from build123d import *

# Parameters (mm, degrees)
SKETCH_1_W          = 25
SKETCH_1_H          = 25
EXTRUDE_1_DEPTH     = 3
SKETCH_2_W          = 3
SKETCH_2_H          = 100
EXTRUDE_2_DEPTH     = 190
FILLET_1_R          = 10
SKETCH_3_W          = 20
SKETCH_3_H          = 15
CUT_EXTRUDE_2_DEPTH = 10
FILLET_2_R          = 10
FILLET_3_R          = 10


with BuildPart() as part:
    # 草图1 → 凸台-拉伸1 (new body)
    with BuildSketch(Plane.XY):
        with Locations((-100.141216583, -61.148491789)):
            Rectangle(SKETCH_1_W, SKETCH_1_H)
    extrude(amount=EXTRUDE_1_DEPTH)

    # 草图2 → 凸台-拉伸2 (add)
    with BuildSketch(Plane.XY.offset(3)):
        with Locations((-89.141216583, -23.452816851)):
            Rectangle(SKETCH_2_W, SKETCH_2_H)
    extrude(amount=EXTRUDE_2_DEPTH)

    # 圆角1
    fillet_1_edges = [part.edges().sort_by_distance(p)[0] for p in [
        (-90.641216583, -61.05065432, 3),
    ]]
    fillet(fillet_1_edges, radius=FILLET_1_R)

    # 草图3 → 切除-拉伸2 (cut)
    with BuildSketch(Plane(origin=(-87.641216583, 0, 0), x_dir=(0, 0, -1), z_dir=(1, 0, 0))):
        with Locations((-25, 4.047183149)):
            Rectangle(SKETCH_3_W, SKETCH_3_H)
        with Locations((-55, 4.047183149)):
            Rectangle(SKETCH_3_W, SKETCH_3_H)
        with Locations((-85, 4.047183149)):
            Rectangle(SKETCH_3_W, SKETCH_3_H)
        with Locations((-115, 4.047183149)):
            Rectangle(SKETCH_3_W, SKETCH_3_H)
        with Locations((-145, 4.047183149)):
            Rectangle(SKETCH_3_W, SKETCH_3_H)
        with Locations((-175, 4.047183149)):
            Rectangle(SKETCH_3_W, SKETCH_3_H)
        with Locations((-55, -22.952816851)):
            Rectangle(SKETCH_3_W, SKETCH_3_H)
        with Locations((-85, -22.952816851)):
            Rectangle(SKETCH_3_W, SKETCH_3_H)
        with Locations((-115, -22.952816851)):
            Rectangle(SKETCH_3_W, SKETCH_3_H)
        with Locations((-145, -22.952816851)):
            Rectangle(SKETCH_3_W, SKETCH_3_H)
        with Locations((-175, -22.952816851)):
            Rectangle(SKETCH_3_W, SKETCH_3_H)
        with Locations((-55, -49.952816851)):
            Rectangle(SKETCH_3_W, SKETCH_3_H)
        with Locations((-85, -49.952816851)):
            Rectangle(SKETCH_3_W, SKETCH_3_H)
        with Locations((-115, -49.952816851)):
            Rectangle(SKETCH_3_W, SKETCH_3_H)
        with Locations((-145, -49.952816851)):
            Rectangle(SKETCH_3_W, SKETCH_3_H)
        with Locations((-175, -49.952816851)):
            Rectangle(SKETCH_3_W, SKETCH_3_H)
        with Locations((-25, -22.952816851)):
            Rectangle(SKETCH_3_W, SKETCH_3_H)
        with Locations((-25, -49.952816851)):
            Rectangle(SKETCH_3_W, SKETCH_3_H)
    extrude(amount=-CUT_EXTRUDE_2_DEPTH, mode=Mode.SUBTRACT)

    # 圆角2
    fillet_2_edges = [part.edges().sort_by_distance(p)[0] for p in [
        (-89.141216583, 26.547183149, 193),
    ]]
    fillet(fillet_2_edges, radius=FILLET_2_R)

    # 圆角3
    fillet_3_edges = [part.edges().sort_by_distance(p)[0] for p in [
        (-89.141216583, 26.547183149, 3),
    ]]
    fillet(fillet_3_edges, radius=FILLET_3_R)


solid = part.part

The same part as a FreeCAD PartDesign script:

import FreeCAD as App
import Part
import Sketcher
from FreeCAD import Vector
Q = App.Units.Quantity


def edges_at(feature, points):
    """Names of the edges that pass closest to the given points."""
    edges = feature.Shape.Edges
    near = lambda p: min(range(len(edges)), key=lambda i: edges[i].distToShape(Part.Vertex(*p))[0])
    return sorted({f"Edge{near(p) + 1}" for p in points})

doc = App.newDocument("Part")
params = doc.addObject("Spreadsheet::Sheet", "Params")
for row, (alias, value) in enumerate([
    ("sketch1_width", "25 mm"),
    ("pad1_length", "3 mm"),
    ("sketch2_width", "3 mm"),
    ("sketch2_height", "100 mm"),
    ("pad2_length", "190 mm"),
    ("fillet_radius", "10 mm"),
    ("sketch3_width", "15 mm"),
    ("sketch3_height", "20 mm"),
    ("pocket1_length", "10 mm"),
    ("fillet2_radius", "10 mm"),
    ("fillet3_radius", "10 mm"),
], start=1):
    params.set(f"A{row}", alias)
    params.set(f"B{row}", "=" + value)
    params.setAlias(f"B{row}", alias)

body = doc.addObject("PartDesign::Body", "Body")

# Sketch on XY plane
sketch1 = body.newObject("Sketcher::SketchObject", "Sketch")
sketch1.AttachmentSupport = (doc.getObject("XY_Plane"), [""])
sketch1.MapMode = "FlatFace"
sketch1.addGeometry([
    Part.LineSegment(Vector(-112.641217, -48.648492, 0), Vector(-112.641217, -73.648492, 0)),
    Part.LineSegment(Vector(-112.641217, -73.648492, 0), Vector(-87.641217, -73.648492, 0)),
    Part.LineSegment(Vector(-87.641217, -73.648492, 0), Vector(-87.641217, -48.648492, 0)),
    Part.LineSegment(Vector(-87.641217, -48.648492, 0), Vector(-112.641217, -48.648492, 0)),
], False)
sketch1.addConstraint([
    Sketcher.Constraint("Coincident", 0, 2, 1, 1),
    Sketcher.Constraint("Coincident", 1, 2, 2, 1),
    Sketcher.Constraint("Coincident", 2, 2, 3, 1),
    Sketcher.Constraint("Coincident", 3, 2, 0, 1),
    Sketcher.Constraint("Vertical", 0),
    Sketcher.Constraint("Horizontal", 1),
    Sketcher.Constraint("Vertical", 2),
    Sketcher.Constraint("Horizontal", 3),
    Sketcher.Constraint("Equal", 3, 0),
    Sketcher.Constraint("DistanceX", 1, 1, 1, 2, Q("25 mm")),
    Sketcher.Constraint("DistanceY", 0, 2, -1, 1, Q("73.648492 mm")),
    Sketcher.Constraint("DistanceX", 0, 2, -1, 1, Q("112.641217 mm")),
])
sketch1.setExpression("Constraints[9]", "Params.sketch1_width")
pad1 = body.newObject("PartDesign::Pad", "Pad")
pad1.Profile = sketch1
pad1.setExpression("Length", "Params.pad1_length")

# Sketch on XY plane
sketch2 = body.newObject("Sketcher::SketchObject", "Sketch001")
sketch2.AttachmentSupport = (doc.getObject("XY_Plane"), [""])
sketch2.MapMode = "FlatFace"
sketch2.AttachmentOffset = App.Placement(Vector(0, 0, 3), App.Rotation())
sketch2.addGeometry([
    Part.LineSegment(Vector(-90.641217, 26.547183, 0), Vector(-90.641217, -73.452817, 0)),
    Part.LineSegment(Vector(-90.641217, -73.452817, 0), Vector(-87.641217, -73.452817, 0)),
    Part.LineSegment(Vector(-87.641217, -73.452817, 0), Vector(-87.641217, 26.547183, 0)),
    Part.LineSegment(Vector(-87.641217, 26.547183, 0), Vector(-90.641217, 26.547183, 0)),
], False)
sketch2.addConstraint([
    Sketcher.Constraint("Coincident", 0, 2, 1, 1),
    Sketcher.Constraint("Coincident", 1, 2, 2, 1),
    Sketcher.Constraint("Coincident", 2, 2, 3, 1),
    Sketcher.Constraint("Coincident", 3, 2, 0, 1),
    Sketcher.Constraint("Vertical", 0),
    Sketcher.Constraint("Horizontal", 1),
    Sketcher.Constraint("Vertical", 2),
    Sketcher.Constraint("Horizontal", 3),
    Sketcher.Constraint("DistanceX", 1, 1, 1, 2, Q("3 mm")),
    Sketcher.Constraint("DistanceY", 0, 2, 0, 1, Q("100 mm")),
    Sketcher.Constraint("DistanceX", 0, 2, -1, 1, Q("90.641217 mm")),
    Sketcher.Constraint("DistanceY", 0, 2, -1, 1, Q("73.452817 mm")),
])
sketch2.setExpression("Constraints[8]", "Params.sketch2_width")
sketch2.setExpression("Constraints[9]", "Params.sketch2_height")
pad2 = body.newObject("PartDesign::Pad", "Pad001")
pad2.Profile = sketch2
pad2.setExpression("Length", "Params.pad2_length")
doc.recompute()

fillet = body.newObject("PartDesign::Fillet", "Fillet")
fillet.Base = (pad2, edges_at(pad2, [(-90.641, -61.051, 3)]))
fillet.setExpression("Radius", "Params.fillet_radius")

# Sketch on YZ plane
sketch3 = body.newObject("Sketcher::SketchObject", "Sketch002")
sketch3.AttachmentSupport = (doc.getObject("YZ_Plane"), [""])
sketch3.MapMode = "FlatFace"
sketch3.AttachmentOffset = App.Placement(Vector(0, 0, -87.641217), App.Rotation())
sketch3.addGeometry([
    Part.LineSegment(Vector(11.547183, 35, 0), Vector(-3.452817, 35, 0)),  # 0
    Part.LineSegment(Vector(-3.452817, 35, 0), Vector(-3.452817, 15, 0)),  # 1
    Part.LineSegment(Vector(-3.452817, 15, 0), Vector(11.547183, 15, 0)),  # 2
    Part.LineSegment(Vector(11.547183, 15, 0), Vector(11.547183, 35, 0)),  # 3
    Part.LineSegment(Vector(11.547183, 65, 0), Vector(-3.452817, 65, 0)),  # 4
    Part.LineSegment(Vector(-3.452817, 65, 0), Vector(-3.452817, 45, 0)),  # 5
    Part.LineSegment(Vector(-3.452817, 45, 0), Vector(11.547183, 45, 0)),  # 6
    Part.LineSegment(Vector(11.547183, 45, 0), Vector(11.547183, 65, 0)),  # 7
    Part.LineSegment(Vector(11.547183, 95, 0), Vector(-3.452817, 95, 0)),  # 8
    Part.LineSegment(Vector(-3.452817, 95, 0), Vector(-3.452817, 75, 0)),  # 9
    Part.LineSegment(Vector(-3.452817, 75, 0), Vector(11.547183, 75, 0)),  # 10
    Part.LineSegment(Vector(11.547183, 75, 0), Vector(11.547183, 95, 0)),  # 11
    Part.LineSegment(Vector(11.547183, 125, 0), Vector(-3.452817, 125, 0)),  # 12
    Part.LineSegment(Vector(-3.452817, 125, 0), Vector(-3.452817, 105, 0)),  # 13
    Part.LineSegment(Vector(-3.452817, 105, 0), Vector(11.547183, 105, 0)),  # 14
    Part.LineSegment(Vector(11.547183, 105, 0), Vector(11.547183, 125, 0)),  # 15
    Part.LineSegment(Vector(11.547183, 155, 0), Vector(-3.452817, 155, 0)),  # 16
    Part.LineSegment(Vector(-3.452817, 155, 0), Vector(-3.452817, 135, 0)),  # 17
    Part.LineSegment(Vector(-3.452817, 135, 0), Vector(11.547183, 135, 0)),  # 18
    Part.LineSegment(Vector(11.547183, 135, 0), Vector(11.547183, 155, 0)),  # 19
    Part.LineSegment(Vector(11.547183, 185, 0), Vector(-3.452817, 185, 0)),  # 20
    Part.LineSegment(Vector(-3.452817, 185, 0), Vector(-3.452817, 165, 0)),  # 21
    Part.LineSegment(Vector(-3.452817, 165, 0), Vector(11.547183, 165, 0)),  # 22
    Part.LineSegment(Vector(11.547183, 165, 0), Vector(11.547183, 185, 0)),  # 23
    Part.LineSegment(Vector(-15.452817, 65, 0), Vector(-30.452817, 65, 0)),  # 24
    Part.LineSegment(Vector(-30.452817, 65, 0), Vector(-30.452817, 45, 0)),  # 25
    Part.LineSegment(Vector(-30.452817, 45, 0), Vector(-15.452817, 45, 0)),  # 26
    Part.LineSegment(Vector(-15.452817, 45, 0), Vector(-15.452817, 65, 0)),  # 27
    Part.LineSegment(Vector(-15.452817, 95, 0), Vector(-30.452817, 95, 0)),  # 28
    Part.LineSegment(Vector(-30.452817, 95, 0), Vector(-30.452817, 75, 0)),  # 29
    Part.LineSegment(Vector(-30.452817, 75, 0), Vector(-15.452817, 75, 0)),  # 30
    Part.LineSegment(Vector(-15.452817, 75, 0), Vector(-15.452817, 95, 0)),  # 31
    Part.LineSegment(Vector(-15.452817, 125, 0), Vector(-30.452817, 125, 0)),  # 32
    Part.LineSegment(Vector(-30.452817, 125, 0), Vector(-30.452817, 105, 0)),  # 33
    Part.LineSegment(Vector(-30.452817, 105, 0), Vector(-15.452817, 105, 0)),  # 34
    Part.LineSegment(Vector(-15.452817, 105, 0), Vector(-15.452817, 125, 0)),  # 35
    Part.LineSegment(Vector(-15.452817, 155, 0), Vector(-30.452817, 155, 0)),  # 36
    Part.LineSegment(Vector(-30.452817, 155, 0), Vector(-30.452817, 135, 0)),  # 37
    Part.LineSegment(Vector(-30.452817, 135, 0), Vector(-15.452817, 135, 0)),  # 38
    Part.LineSegment(Vector(-15.452817, 135, 0), Vector(-15.452817, 155, 0)),  # 39
    Part.LineSegment(Vector(-15.452817, 185, 0), Vector(-30.452817, 185, 0)),  # 40
    Part.LineSegment(Vector(-30.452817, 185, 0), Vector(-30.452817, 165, 0)),  # 41
    Part.LineSegment(Vector(-30.452817, 165, 0), Vector(-15.452817, 165, 0)),  # 42
    Part.LineSegment(Vector(-15.452817, 165, 0), Vector(-15.452817, 185, 0)),  # 43
    Part.LineSegment(Vector(-42.452817, 65, 0), Vector(-57.452817, 65, 0)),  # 44
    Part.LineSegment(Vector(-57.452817, 65, 0), Vector(-57.452817, 45, 0)),  # 45
    Part.LineSegment(Vector(-57.452817, 45, 0), Vector(-42.452817, 45, 0)),  # 46
    Part.LineSegment(Vector(-42.452817, 45, 0), Vector(-42.452817, 65, 0)),  # 47
    Part.LineSegment(Vector(-42.452817, 95, 0), Vector(-57.452817, 95, 0)),  # 48
    Part.LineSegment(Vector(-57.452817, 95, 0), Vector(-57.452817, 75, 0)),  # 49
    Part.LineSegment(Vector(-57.452817, 75, 0), Vector(-42.452817, 75, 0)),  # 50
    Part.LineSegment(Vector(-42.452817, 75, 0), Vector(-42.452817, 95, 0)),  # 51
    Part.LineSegment(Vector(-42.452817, 125, 0), Vector(-57.452817, 125, 0)),  # 52
    Part.LineSegment(Vector(-57.452817, 125, 0), Vector(-57.452817, 105, 0)),  # 53
    Part.LineSegment(Vector(-57.452817, 105, 0), Vector(-42.452817, 105, 0)),  # 54
    Part.LineSegment(Vector(-42.452817, 105, 0), Vector(-42.452817, 125, 0)),  # 55
    Part.LineSegment(Vector(-42.452817, 155, 0), Vector(-57.452817, 155, 0)),  # 56
    Part.LineSegment(Vector(-57.452817, 155, 0), Vector(-57.452817, 135, 0)),  # 57
    Part.LineSegment(Vector(-57.452817, 135, 0), Vector(-42.452817, 135, 0)),  # 58
    Part.LineSegment(Vector(-42.452817, 135, 0), Vector(-42.452817, 155, 0)),  # 59
    Part.LineSegment(Vector(-42.452817, 185, 0), Vector(-57.452817, 185, 0)),  # 60
    Part.LineSegment(Vector(-57.452817, 185, 0), Vector(-57.452817, 165, 0)),  # 61
    Part.LineSegment(Vector(-57.452817, 165, 0), Vector(-42.452817, 165, 0)),  # 62
    Part.LineSegment(Vector(-42.452817, 165, 0), Vector(-42.452817, 185, 0)),  # 63
    Part.LineSegment(Vector(-15.452817, 35, 0), Vector(-30.452817, 35, 0)),  # 64
    Part.LineSegment(Vector(-30.452817, 35, 0), Vector(-30.452817, 15, 0)),  # 65
    Part.LineSegment(Vector(-30.452817, 15, 0), Vector(-15.452817, 15, 0)),  # 66
    Part.LineSegment(Vector(-15.452817, 15, 0), Vector(-15.452817, 35, 0)),  # 67
    Part.LineSegment(Vector(-42.452817, 35, 0), Vector(-57.452817, 35, 0)),  # 68
    Part.LineSegment(Vector(-57.452817, 35, 0), Vector(-57.452817, 15, 0)),  # 69
    Part.LineSegment(Vector(-57.452817, 15, 0), Vector(-42.452817, 15, 0)),  # 70
    Part.LineSegment(Vector(-42.452817, 15, 0), Vector(-42.452817, 35, 0)),  # 71
], False)
sketch3.addConstraint([
    Sketcher.Constraint("Coincident", 0, 2, 1, 1),
    Sketcher.Constraint("Coincident", 1, 2, 2, 1),
    Sketcher.Constraint("Coincident", 2, 2, 3, 1),
    Sketcher.Constraint("Coincident", 3, 2, 0, 1),
    Sketcher.Constraint("Coincident", 4, 2, 5, 1),
    Sketcher.Constraint("Coincident", 5, 2, 6, 1),
    Sketcher.Constraint("Coincident", 6, 2, 7, 1),
    Sketcher.Constraint("Coincident", 7, 2, 4, 1),
    Sketcher.Constraint("Coincident", 8, 2, 9, 1),
    Sketcher.Constraint("Coincident", 9, 2, 10, 1),
    Sketcher.Constraint("Coincident", 10, 2, 11, 1),
    Sketcher.Constraint("Coincident", 11, 2, 8, 1),
    Sketcher.Constraint("Coincident", 12, 2, 13, 1),
    Sketcher.Constraint("Coincident", 13, 2, 14, 1),
    Sketcher.Constraint("Coincident", 14, 2, 15, 1),
    Sketcher.Constraint("Coincident", 15, 2, 12, 1),
    Sketcher.Constraint("Coincident", 16, 2, 17, 1),
    Sketcher.Constraint("Coincident", 17, 2, 18, 1),
    Sketcher.Constraint("Coincident", 18, 2, 19, 1),
    Sketcher.Constraint("Coincident", 19, 2, 16, 1),
    Sketcher.Constraint("Coincident", 20, 2, 21, 1),
    Sketcher.Constraint("Coincident", 21, 2, 22, 1),
    Sketcher.Constraint("Coincident", 22, 2, 23, 1),
    Sketcher.Constraint("Coincident", 23, 2, 20, 1),
    Sketcher.Constraint("Coincident", 24, 2, 25, 1),
    Sketcher.Constraint("Coincident", 25, 2, 26, 1),
    Sketcher.Constraint("Coincident", 26, 2, 27, 1),
    Sketcher.Constraint("Coincident", 27, 2, 24, 1),
    Sketcher.Constraint("Coincident", 28, 2, 29, 1),
    Sketcher.Constraint("Coincident", 29, 2, 30, 1),
    Sketcher.Constraint("Coincident", 30, 2, 31, 1),
    Sketcher.Constraint("Coincident", 31, 2, 28, 1),
    Sketcher.Constraint("Coincident", 32, 2, 33, 1),
    Sketcher.Constraint("Coincident", 33, 2, 34, 1),
    Sketcher.Constraint("Coincident", 34, 2, 35, 1),
    Sketcher.Constraint("Coincident", 35, 2, 32, 1),
    Sketcher.Constraint("Coincident", 36, 2, 37, 1),
    Sketcher.Constraint("Coincident", 37, 2, 38, 1),
    Sketcher.Constraint("Coincident", 38, 2, 39, 1),
    Sketcher.Constraint("Coincident", 39, 2, 36, 1),
    Sketcher.Constraint("Coincident", 40, 2, 41, 1),
    Sketcher.Constraint("Coincident", 41, 2, 42, 1),
    Sketcher.Constraint("Coincident", 42, 2, 43, 1),
    Sketcher.Constraint("Coincident", 43, 2, 40, 1),
    Sketcher.Constraint("Coincident", 44, 2, 45, 1),
    Sketcher.Constraint("Coincident", 45, 2, 46, 1),
    Sketcher.Constraint("Coincident", 46, 2, 47, 1),
    Sketcher.Constraint("Coincident", 47, 2, 44, 1),
    Sketcher.Constraint("Coincident", 48, 2, 49, 1),
    Sketcher.Constraint("Coincident", 49, 2, 50, 1),
    Sketcher.Constraint("Coincident", 50, 2, 51, 1),
    Sketcher.Constraint("Coincident", 51, 2, 48, 1),
    Sketcher.Constraint("Coincident", 52, 2, 53, 1),
    Sketcher.Constraint("Coincident", 53, 2, 54, 1),
    Sketcher.Constraint("Coincident", 54, 2, 55, 1),
    Sketcher.Constraint("Coincident", 55, 2, 52, 1),
    Sketcher.Constraint("Coincident", 56, 2, 57, 1),
    Sketcher.Constraint("Coincident", 57, 2, 58, 1),
    Sketcher.Constraint("Coincident", 58, 2, 59, 1),
    Sketcher.Constraint("Coincident", 59, 2, 56, 1),
    Sketcher.Constraint("Coincident", 60, 2, 61, 1),
    Sketcher.Constraint("Coincident", 61, 2, 62, 1),
    Sketcher.Constraint("Coincident", 62, 2, 63, 1),
    Sketcher.Constraint("Coincident", 63, 2, 60, 1),
    Sketcher.Constraint("Coincident", 64, 2, 65, 1),
    Sketcher.Constraint("Coincident", 65, 2, 66, 1),
    Sketcher.Constraint("Coincident", 66, 2, 67, 1),
    Sketcher.Constraint("Coincident", 67, 2, 64, 1),
    Sketcher.Constraint("Coincident", 68, 2, 69, 1),
    Sketcher.Constraint("Coincident", 69, 2, 70, 1),
    Sketcher.Constraint("Coincident", 70, 2, 71, 1),
    Sketcher.Constraint("Coincident", 71, 2, 68, 1),
    Sketcher.Constraint("Horizontal", 0),
    Sketcher.Constraint("Vertical", 1),
    Sketcher.Constraint("Horizontal", 2),
    Sketcher.Constraint("Vertical", 3),
    Sketcher.Constraint("Horizontal", 4),
    Sketcher.Constraint("Vertical", 5),
    Sketcher.Constraint("Horizontal", 6),
    Sketcher.Constraint("Vertical", 7),
    Sketcher.Constraint("Horizontal", 8),
    Sketcher.Constraint("Vertical", 9),
    Sketcher.Constraint("Horizontal", 10),
    Sketcher.Constraint("Vertical", 11),
    Sketcher.Constraint("Horizontal", 12),
    Sketcher.Constraint("Vertical", 13),
    Sketcher.Constraint("Horizontal", 14),
    Sketcher.Constraint("Vertical", 15),
    Sketcher.Constraint("Horizontal", 16),
    Sketcher.Constraint("Vertical", 17),
    Sketcher.Constraint("Horizontal", 18),
    Sketcher.Constraint("Vertical", 19),
    Sketcher.Constraint("Horizontal", 20),
    Sketcher.Constraint("Vertical", 21),
    Sketcher.Constraint("Horizontal", 22),
    Sketcher.Constraint("Vertical", 23),
    Sketcher.Constraint("Horizontal", 24),
    Sketcher.Constraint("Vertical", 25),
    Sketcher.Constraint("Horizontal", 26),
    Sketcher.Constraint("Vertical", 27),
    Sketcher.Constraint("Horizontal", 28),
    Sketcher.Constraint("Vertical", 29),
    Sketcher.Constraint("Horizontal", 30),
    Sketcher.Constraint("Vertical", 31),
    Sketcher.Constraint("Horizontal", 32),
    Sketcher.Constraint("Vertical", 33),
    Sketcher.Constraint("Horizontal", 34),
    Sketcher.Constraint("Vertical", 35),
    Sketcher.Constraint("Horizontal", 36),
    Sketcher.Constraint("Vertical", 37),
    Sketcher.Constraint("Horizontal", 38),
    Sketcher.Constraint("Vertical", 39),
    Sketcher.Constraint("Horizontal", 40),
    Sketcher.Constraint("Vertical", 41),
    Sketcher.Constraint("Horizontal", 42),
    Sketcher.Constraint("Vertical", 43),
    Sketcher.Constraint("Horizontal", 44),
    Sketcher.Constraint("Vertical", 45),
    Sketcher.Constraint("Horizontal", 46),
    Sketcher.Constraint("Vertical", 47),
    Sketcher.Constraint("Horizontal", 48),
    Sketcher.Constraint("Vertical", 49),
    Sketcher.Constraint("Horizontal", 50),
    Sketcher.Constraint("Vertical", 51),
    Sketcher.Constraint("Horizontal", 52),
    Sketcher.Constraint("Vertical", 53),
    Sketcher.Constraint("Horizontal", 54),
    Sketcher.Constraint("Vertical", 55),
    Sketcher.Constraint("Horizontal", 56),
    Sketcher.Constraint("Vertical", 57),
    Sketcher.Constraint("Horizontal", 58),
    Sketcher.Constraint("Vertical", 59),
    Sketcher.Constraint("Horizontal", 60),
    Sketcher.Constraint("Vertical", 61),
    Sketcher.Constraint("Horizontal", 62),
    Sketcher.Constraint("Vertical", 63),
    Sketcher.Constraint("Horizontal", 64),
    Sketcher.Constraint("Vertical", 65),
    Sketcher.Constraint("Horizontal", 66),
    Sketcher.Constraint("Vertical", 67),
    Sketcher.Constraint("Horizontal", 68),
    Sketcher.Constraint("Vertical", 69),
    Sketcher.Constraint("Horizontal", 70),
    Sketcher.Constraint("Vertical", 71),
    Sketcher.Constraint("Horizontal", 7, 2, 24, 2),
    Sketcher.Constraint("Horizontal", 6, 2, 25, 2),
    Sketcher.Constraint("Horizontal", 11, 2, 28, 2),
    Sketcher.Constraint("Horizontal", 10, 2, 29, 2),
    Sketcher.Constraint("Horizontal", 15, 2, 32, 2),
    Sketcher.Constraint("Horizontal", 14, 2, 33, 2),
    Sketcher.Constraint("Horizontal", 19, 2, 36, 2),
    Sketcher.Constraint("Horizontal", 18, 2, 37, 2),
    Sketcher.Constraint("Horizontal", 23, 2, 40, 2),
    Sketcher.Constraint("Horizontal", 22, 2, 41, 2),
    Sketcher.Constraint("Horizontal", 27, 2, 44, 2),
    Sketcher.Constraint("Horizontal", 26, 2, 45, 2),
    Sketcher.Constraint("Horizontal", 31, 2, 48, 2),
    Sketcher.Constraint("Horizontal", 30, 2, 49, 2),
    Sketcher.Constraint("Horizontal", 35, 2, 52, 2),
    Sketcher.Constraint("Horizontal", 34, 2, 53, 2),
    Sketcher.Constraint("Horizontal", 39, 2, 56, 2),
    Sketcher.Constraint("Horizontal", 38, 2, 57, 2),
    Sketcher.Constraint("Horizontal", 43, 2, 60, 2),
    Sketcher.Constraint("Horizontal", 42, 2, 61, 2),
    Sketcher.Constraint("Horizontal", 3, 2, 64, 2),
    Sketcher.Constraint("Horizontal", 2, 2, 65, 2),
    Sketcher.Constraint("Horizontal", 67, 2, 68, 2),
    Sketcher.Constraint("Horizontal", 66, 2, 69, 2),
    Sketcher.Constraint("Vertical", 1, 2, 4, 2),
    Sketcher.Constraint("Vertical", 3, 2, 6, 2),
    Sketcher.Constraint("Vertical", 5, 2, 8, 2),
    Sketcher.Constraint("Vertical", 7, 2, 10, 2),
    Sketcher.Constraint("Vertical", 9, 2, 12, 2),
    Sketcher.Constraint("Vertical", 11, 2, 14, 2),
    Sketcher.Constraint("Vertical", 13, 2, 16, 2),
    Sketcher.Constraint("Vertical", 15, 2, 18, 2),
    Sketcher.Constraint("Vertical", 17, 2, 20, 2),
    Sketcher.Constraint("Vertical", 19, 2, 22, 2),
    Sketcher.Constraint("Vertical", 25, 2, 28, 2),
    Sketcher.Constraint("Vertical", 27, 2, 30, 2),
    Sketcher.Constraint("Vertical", 29, 2, 32, 2),
    Sketcher.Constraint("Vertical", 31, 2, 34, 2),
    Sketcher.Constraint("Vertical", 33, 2, 36, 2),
    Sketcher.Constraint("Vertical", 35, 2, 38, 2),
    Sketcher.Constraint("Vertical", 37, 2, 40, 2),
    Sketcher.Constraint("Vertical", 39, 2, 42, 2),
    Sketcher.Constraint("Vertical", 45, 2, 48, 2),
    Sketcher.Constraint("Vertical", 47, 2, 50, 2),
    Sketcher.Constraint("Vertical", 49, 2, 52, 2),
    Sketcher.Constraint("Vertical", 51, 2, 54, 2),
    Sketcher.Constraint("Vertical", 53, 2, 56, 2),
    Sketcher.Constraint("Vertical", 55, 2, 58, 2),
    Sketcher.Constraint("Vertical", 57, 2, 60, 2),
    Sketcher.Constraint("Vertical", 59, 2, 62, 2),
    Sketcher.Constraint("Vertical", 41, 2, 64, 2),
    Sketcher.Constraint("Vertical", 43, 2, 66, 2),
    Sketcher.Constraint("Vertical", 61, 2, 68, 2),
    Sketcher.Constraint("Vertical", 63, 2, 70, 2),
    Sketcher.Constraint("Equal", 22, 24),
    Sketcher.Constraint("Equal", 42, 44),
    Sketcher.Constraint("Equal", 3, 5),
    Sketcher.Constraint("Equal", 7, 9),
    Sketcher.Constraint("Equal", 11, 13),
    Sketcher.Constraint("Equal", 15, 17),
    Sketcher.Constraint("Equal", 19, 21),
    Sketcher.Constraint("DistanceX", 0, 2, 0, 1, Q("15 mm")),
    Sketcher.Constraint("DistanceY", 1, 2, 1, 1, Q("20 mm")),
    Sketcher.Constraint("DistanceY", -1, 1, 0, 2, Q("35 mm")),
    Sketcher.Constraint("DistanceY", -1, 1, 4, 2, Q("65 mm")),
    Sketcher.Constraint("DistanceY", -1, 1, 8, 2, Q("95 mm")),
    Sketcher.Constraint("DistanceY", -1, 1, 12, 2, Q("125 mm")),
    Sketcher.Constraint("DistanceY", -1, 1, 16, 2, Q("155 mm")),
    Sketcher.Constraint("DistanceY", -1, 1, 20, 2, Q("185 mm")),
    Sketcher.Constraint("DistanceX", 0, 2, -1, 1, Q("3.452817 mm")),
    Sketcher.Constraint("DistanceX", 24, 2, -1, 1, Q("30.452817 mm")),
    Sketcher.Constraint("DistanceX", 44, 2, -1, 1, Q("57.452817 mm")),
])
sketch3.setExpression("Constraints[205]", "Params.sketch3_width")
sketch3.setExpression("Constraints[206]", "Params.sketch3_height")
pocket1 = body.newObject("PartDesign::Pocket", "Pocket")
pocket1.Profile = sketch3
pocket1.setExpression("Length", "Params.pocket1_length")
doc.recompute()

fillet2 = body.newObject("PartDesign::Fillet", "Fillet001")
fillet2.Base = (pocket1, edges_at(pocket1, [(-89.141, 26.547, 193)]))
fillet2.setExpression("Radius", "Params.fillet2_radius")
doc.recompute()

fillet3 = body.newObject("PartDesign::Fillet", "Fillet002")
fillet3.Base = (fillet2, edges_at(fillet2, [(-89.141, 26.547, 3)]))
fillet3.setExpression("Radius", "Params.fillet3_radius")

doc.recompute()
